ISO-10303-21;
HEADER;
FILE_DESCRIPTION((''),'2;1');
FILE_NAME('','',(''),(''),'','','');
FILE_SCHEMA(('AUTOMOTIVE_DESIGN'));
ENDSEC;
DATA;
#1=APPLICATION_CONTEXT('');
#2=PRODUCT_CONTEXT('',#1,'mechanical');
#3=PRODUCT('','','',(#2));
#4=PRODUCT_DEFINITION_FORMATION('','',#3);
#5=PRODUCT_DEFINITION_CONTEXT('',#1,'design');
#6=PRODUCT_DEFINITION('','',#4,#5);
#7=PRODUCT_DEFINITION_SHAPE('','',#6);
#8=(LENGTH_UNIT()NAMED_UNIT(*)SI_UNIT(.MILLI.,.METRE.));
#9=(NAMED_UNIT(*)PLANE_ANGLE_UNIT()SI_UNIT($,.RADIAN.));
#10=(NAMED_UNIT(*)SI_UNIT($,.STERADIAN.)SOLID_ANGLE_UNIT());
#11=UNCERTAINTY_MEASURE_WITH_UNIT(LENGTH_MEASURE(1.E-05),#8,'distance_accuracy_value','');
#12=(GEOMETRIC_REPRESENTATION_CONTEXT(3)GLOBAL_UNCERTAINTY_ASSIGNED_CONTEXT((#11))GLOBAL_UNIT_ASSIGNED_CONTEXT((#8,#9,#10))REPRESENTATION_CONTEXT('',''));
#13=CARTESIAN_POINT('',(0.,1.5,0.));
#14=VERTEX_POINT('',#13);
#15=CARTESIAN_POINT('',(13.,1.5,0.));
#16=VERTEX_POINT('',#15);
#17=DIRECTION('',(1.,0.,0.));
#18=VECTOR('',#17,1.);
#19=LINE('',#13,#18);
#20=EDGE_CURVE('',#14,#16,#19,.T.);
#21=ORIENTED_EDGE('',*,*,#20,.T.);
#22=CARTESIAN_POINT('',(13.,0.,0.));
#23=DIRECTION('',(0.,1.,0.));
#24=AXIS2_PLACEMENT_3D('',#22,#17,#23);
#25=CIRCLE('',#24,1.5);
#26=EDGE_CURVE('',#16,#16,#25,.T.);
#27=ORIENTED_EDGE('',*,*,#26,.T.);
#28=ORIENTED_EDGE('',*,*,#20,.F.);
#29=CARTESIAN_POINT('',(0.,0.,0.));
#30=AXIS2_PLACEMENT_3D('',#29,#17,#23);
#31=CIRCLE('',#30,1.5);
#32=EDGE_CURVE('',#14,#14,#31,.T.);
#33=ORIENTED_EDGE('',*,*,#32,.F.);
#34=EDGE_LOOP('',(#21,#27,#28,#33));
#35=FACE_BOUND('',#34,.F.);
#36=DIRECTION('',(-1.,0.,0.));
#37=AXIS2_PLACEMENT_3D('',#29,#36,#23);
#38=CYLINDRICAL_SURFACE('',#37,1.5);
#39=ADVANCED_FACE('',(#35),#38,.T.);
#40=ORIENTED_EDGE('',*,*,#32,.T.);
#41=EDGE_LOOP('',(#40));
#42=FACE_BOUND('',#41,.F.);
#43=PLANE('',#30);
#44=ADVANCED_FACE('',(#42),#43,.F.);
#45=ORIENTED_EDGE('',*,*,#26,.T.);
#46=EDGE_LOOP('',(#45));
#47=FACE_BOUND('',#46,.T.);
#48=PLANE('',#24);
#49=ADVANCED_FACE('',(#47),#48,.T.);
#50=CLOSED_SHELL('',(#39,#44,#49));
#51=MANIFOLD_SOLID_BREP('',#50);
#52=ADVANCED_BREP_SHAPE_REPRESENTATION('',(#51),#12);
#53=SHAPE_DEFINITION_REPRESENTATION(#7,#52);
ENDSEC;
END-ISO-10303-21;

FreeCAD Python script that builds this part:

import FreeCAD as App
import Part
import Sketcher

V = App.Vector
Q = App.Units.Quantity

doc = App.newDocument("Part")
body = doc.addObject("PartDesign::Body", "Body")

# Sketch on YZ plane
sketch1 = body.newObject("Sketcher::SketchObject", "Sketch")
sketch1.AttachmentSupport = (doc.getObject("YZ_Plane"), [""])
sketch1.MapMode = "FlatFace"
sketch1.addGeometry(Part.Circle(V(0, 0, 0), V(0, 0, 1), 1.5), False)
sketch1.addConstraint(Sketcher.Constraint("Coincident", 0, 3, -1, 1))
sketch1.addConstraint(Sketcher.Constraint("Diameter", 0, Q("3 mm")))
pad1 = body.newObject("PartDesign::Pad", "Pad")
pad1.Profile = sketch1
pad1.Length = 13

doc.recompute()
